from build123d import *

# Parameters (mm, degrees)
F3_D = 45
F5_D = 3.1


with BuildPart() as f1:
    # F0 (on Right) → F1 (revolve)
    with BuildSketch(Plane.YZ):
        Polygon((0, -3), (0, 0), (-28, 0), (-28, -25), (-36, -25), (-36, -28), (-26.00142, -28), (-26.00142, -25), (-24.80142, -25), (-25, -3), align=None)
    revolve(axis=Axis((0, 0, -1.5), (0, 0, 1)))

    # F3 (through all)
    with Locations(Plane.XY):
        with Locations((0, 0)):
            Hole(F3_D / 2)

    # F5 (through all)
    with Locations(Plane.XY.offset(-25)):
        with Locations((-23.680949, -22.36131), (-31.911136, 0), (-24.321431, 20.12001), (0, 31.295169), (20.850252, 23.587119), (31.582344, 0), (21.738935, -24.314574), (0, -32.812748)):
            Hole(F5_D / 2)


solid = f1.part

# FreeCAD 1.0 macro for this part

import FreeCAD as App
import Part
import Sketcher
from FreeCAD import Vector
Q = App.Units.Quantity


def add_polygon(sketch, points):
    """Adds a closed chain of lines whose ends are joined by coincident constraints."""
    first, n = sketch.GeometryCount, len(points)
    for a, b in zip(points, points[1:] + points[:1]):
        sketch.addGeometry(Part.LineSegment(App.Vector(*a, 0), App.Vector(*b, 0)), False)
    for i in range(n):
        sketch.addConstraint(Sketcher.Constraint("Coincident", first + i, 2, first + (i + 1) % n, 1))

doc = App.newDocument("Part")
body = doc.addObject("PartDesign::Body", "Body")

sketch1 = doc.addObject("Sketcher::SketchObject", "Sketch")
body.addObject(sketch1)
sketch1.AttachmentSupport = (doc.YZ_Plane, [""])
sketch1.MapMode = "FlatFace"
add_polygon(sketch1, [(0, -3), (0, 0), (-28, 0), (-28, -25), (-36, -25), (-36, -28), (-26, -28), (-26, -25), (-24.8, -25), (-25, -3)])
sketch1.addConstraint(Sketcher.Constraint("Vertical", 0))
sketch1.addConstraint(Sketcher.Constraint("Horizontal", 1))
sketch1.addConstraint(Sketcher.Constraint("Vertical", 2))
sketch1.addConstraint(Sketcher.Constraint("Horizontal", 3))
sketch1.addConstraint(Sketcher.Constraint("Vertical", 4))
sketch1.addConstraint(Sketcher.Constraint("Horizontal", 5))
sketch1.addConstraint(Sketcher.Constraint("Vertical", 6))
sketch1.addConstraint(Sketcher.Constraint("Horizontal", 7))
sketch1.addConstraint(Sketcher.Constraint("Horizontal", 9))
sketch1.addConstraint(Sketcher.Constraint("Coincident", 0, 2, -1, 1))
sketch1.addConstraint(Sketcher.Constraint("Horizontal", 3, 2, 6, 2))
sketch1.addConstraint(Sketcher.Constraint("Equal", 9, 2))
sketch1.addConstraint(Sketcher.Constraint("Equal", 0, 4))
sketch1.addConstraint(Sketcher.Constraint("DistanceX", 1, 2, 1, 1, Q("28 mm")))
sketch1.addConstraint(Sketcher.Constraint("DistanceX", 3, 2, 3, 1, Q("8 mm")))
sketch1.addConstraint(Sketcher.Constraint("DistanceX", 9, 1, 9, 2, Q("25 mm")))
sketch1.addConstraint(Sketcher.Constraint("DistanceY", 0, 1, 0, 2, Q("3 mm")))
sketch1.addConstraint(Sketcher.Constraint("DistanceX", 7, 1, 7, 2, Q("1.2 mm")))
sketch1.addConstraint(Sketcher.Constraint("DistanceX", 5, 1, 5, 2, Q("9.99858 mm")))
revolution = doc.addObject("PartDesign::Revolution", "Revolution")
body.addObject(revolution)
revolution.Profile = sketch1
revolution.ReferenceAxis = (sketch1, ["V_Axis"])
revolution.Angle = 360

sketch2 = doc.addObject("Sketcher::SketchObject", "Sketch001")
body.addObject(sketch2)
sketch2.AttachmentSupport = (doc.XY_Plane, [""])
sketch2.MapMode = "FlatFace"
sketch2.addGeometry(Part.Circle(Vector(0, 0, 0), Vector(0, 0, 1), 22), False)
sketch2.addConstraint(Sketcher.Constraint("Coincident", 0, 3, -1, 1))
sketch2.addConstraint(Sketcher.Constraint("Diameter", 0, Q("45 mm")))
doc.recompute()
hole = doc.addObject("PartDesign::Hole", "Hole")
body.addObject(hole)
hole.Profile = sketch2
hole.ThreadType = "None"
hole.Diameter = 45
hole.DepthType = "ThroughAll"

sketch3 = doc.addObject("Sketcher::SketchObject", "Sketch002")
body.addObject(sketch3)
sketch3.AttachmentSupport = (doc.XY_Plane, [""])
sketch3.MapMode = "FlatFace"
sketch3.AttachmentOffset = App.Placement(Vector(0, 0, -25), App.Rotation())
sketch3.addGeometry(Part.Circle(Vector(-23.7, -22.4, 0), Vector(0, 0, 1), 1.6), False)
sketch3.addGeometry(Part.Circle(Vector(-31.9, 0, 0), Vector(0, 0, 1), 1.6), False)
sketch3.addGeometry(Part.Circle(Vector(-24.3, 20.1, 0), Vector(0, 0, 1), 1.6), False)
sketch3.addGeometry(Part.Circle(Vector(0, 31.3, 0), Vector(0, 0, 1), 1.6), False)
sketch3.addGeometry(Part.Circle(Vector(20.9, 23.6, 0), Vector(0, 0, 1), 1.6), False)
sketch3.addGeometry(Part.Circle(Vector(31.6, 0, 0), Vector(0, 0, 1), 1.6), False)
sketch3.addGeometry(Part.Circle(Vector(21.7, -24.3, 0), Vector(0, 0, 1), 1.6), False)
sketch3.addGeometry(Part.Circle(Vector(0, -32.8, 0), Vector(0, 0, 1), 1.6), False)
sketch3.addConstraint(Sketcher.Constraint("Equal", 0, 1))
sketch3.addConstraint(Sketcher.Constraint("Equal", 1, 2))
sketch3.addConstraint(Sketcher.Constraint("Equal", 2, 3))
sketch3.addConstraint(Sketcher.Constraint("Equal", 3, 4))
sketch3.addConstraint(Sketcher.Constraint("Equal", 4, 5))
sketch3.addConstraint(Sketcher.Constraint("Equal", 5, 6))
sketch3.addConstraint(Sketcher.Constraint("Equal", 6, 7))
sketch3.addConstraint(Sketcher.Constraint("PointOnObject", 1, 3, -1))
sketch3.addConstraint(Sketcher.Constraint("PointOnObject", 3, 3, -2))
sketch3.addConstraint(Sketcher.Constraint("PointOnObject", 5, 3, -1))
sketch3.addConstraint(Sketcher.Constraint("PointOnObject", 7, 3, -2))
sketch3.addConstraint(Sketcher.Constraint("Diameter", 0, Q("3.1 mm")))
sketch3.addConstraint(Sketcher.Constraint("DistanceX", 0, 3, 4, 3, Q("44.531201 mm")))
sketch3.addConstraint(Sketcher.Constraint("DistanceX", 0, 3, -1, 1, Q("23.680949 mm")))
sketch3.addConstraint(Sketcher.Constraint("DistanceY", 0, 3, -1, 1, Q("22.36131 mm")))
sketch3.addConstraint(Sketcher.Constraint("DistanceX", 2, 3, -1, 1, Q("24.321431 mm")))
sketch3.addConstraint(Sketcher.Constraint("DistanceY", -1, 1, 2, 3, Q("20.12001 mm")))
sketch3.addConstraint(Sketcher.Constraint("DistanceY", -1, 1, 3, 3, Q("31.295169 mm")))
sketch3.addConstraint(Sketcher.Constraint("DistanceY", -1, 1, 4, 3, Q("23.587119 mm")))
sketch3.addConstraint(Sketcher.Constraint("DistanceX", 4, 3, 5, 3, Q("10.732092 mm")))
sketch3.addConstraint(Sketcher.Constraint("DistanceX", 1, 3, 5, 3, Q("63.49348 mm")))
sketch3.addConstraint(Sketcher.Constraint("DistanceX", 6, 3, 5, 3, Q("9.843409 mm")))
sketch3.addConstraint(Sketcher.Constraint("DistanceY", 6, 3, -1, 1, Q("24.314574 mm")))
sketch3.addConstraint(Sketcher.Constraint("DistanceY", 7, 3, -1, 1, Q("32.812748 mm")))
doc.recompute()
hole2 = doc.addObject("PartDesign::Hole", "Hole001")
body.addObject(hole2)
hole2.Profile = sketch3
hole2.ThreadType = "None"
hole2.Diameter = 3.1
hole2.DepthType = "ThroughAll"

doc.recompute()
